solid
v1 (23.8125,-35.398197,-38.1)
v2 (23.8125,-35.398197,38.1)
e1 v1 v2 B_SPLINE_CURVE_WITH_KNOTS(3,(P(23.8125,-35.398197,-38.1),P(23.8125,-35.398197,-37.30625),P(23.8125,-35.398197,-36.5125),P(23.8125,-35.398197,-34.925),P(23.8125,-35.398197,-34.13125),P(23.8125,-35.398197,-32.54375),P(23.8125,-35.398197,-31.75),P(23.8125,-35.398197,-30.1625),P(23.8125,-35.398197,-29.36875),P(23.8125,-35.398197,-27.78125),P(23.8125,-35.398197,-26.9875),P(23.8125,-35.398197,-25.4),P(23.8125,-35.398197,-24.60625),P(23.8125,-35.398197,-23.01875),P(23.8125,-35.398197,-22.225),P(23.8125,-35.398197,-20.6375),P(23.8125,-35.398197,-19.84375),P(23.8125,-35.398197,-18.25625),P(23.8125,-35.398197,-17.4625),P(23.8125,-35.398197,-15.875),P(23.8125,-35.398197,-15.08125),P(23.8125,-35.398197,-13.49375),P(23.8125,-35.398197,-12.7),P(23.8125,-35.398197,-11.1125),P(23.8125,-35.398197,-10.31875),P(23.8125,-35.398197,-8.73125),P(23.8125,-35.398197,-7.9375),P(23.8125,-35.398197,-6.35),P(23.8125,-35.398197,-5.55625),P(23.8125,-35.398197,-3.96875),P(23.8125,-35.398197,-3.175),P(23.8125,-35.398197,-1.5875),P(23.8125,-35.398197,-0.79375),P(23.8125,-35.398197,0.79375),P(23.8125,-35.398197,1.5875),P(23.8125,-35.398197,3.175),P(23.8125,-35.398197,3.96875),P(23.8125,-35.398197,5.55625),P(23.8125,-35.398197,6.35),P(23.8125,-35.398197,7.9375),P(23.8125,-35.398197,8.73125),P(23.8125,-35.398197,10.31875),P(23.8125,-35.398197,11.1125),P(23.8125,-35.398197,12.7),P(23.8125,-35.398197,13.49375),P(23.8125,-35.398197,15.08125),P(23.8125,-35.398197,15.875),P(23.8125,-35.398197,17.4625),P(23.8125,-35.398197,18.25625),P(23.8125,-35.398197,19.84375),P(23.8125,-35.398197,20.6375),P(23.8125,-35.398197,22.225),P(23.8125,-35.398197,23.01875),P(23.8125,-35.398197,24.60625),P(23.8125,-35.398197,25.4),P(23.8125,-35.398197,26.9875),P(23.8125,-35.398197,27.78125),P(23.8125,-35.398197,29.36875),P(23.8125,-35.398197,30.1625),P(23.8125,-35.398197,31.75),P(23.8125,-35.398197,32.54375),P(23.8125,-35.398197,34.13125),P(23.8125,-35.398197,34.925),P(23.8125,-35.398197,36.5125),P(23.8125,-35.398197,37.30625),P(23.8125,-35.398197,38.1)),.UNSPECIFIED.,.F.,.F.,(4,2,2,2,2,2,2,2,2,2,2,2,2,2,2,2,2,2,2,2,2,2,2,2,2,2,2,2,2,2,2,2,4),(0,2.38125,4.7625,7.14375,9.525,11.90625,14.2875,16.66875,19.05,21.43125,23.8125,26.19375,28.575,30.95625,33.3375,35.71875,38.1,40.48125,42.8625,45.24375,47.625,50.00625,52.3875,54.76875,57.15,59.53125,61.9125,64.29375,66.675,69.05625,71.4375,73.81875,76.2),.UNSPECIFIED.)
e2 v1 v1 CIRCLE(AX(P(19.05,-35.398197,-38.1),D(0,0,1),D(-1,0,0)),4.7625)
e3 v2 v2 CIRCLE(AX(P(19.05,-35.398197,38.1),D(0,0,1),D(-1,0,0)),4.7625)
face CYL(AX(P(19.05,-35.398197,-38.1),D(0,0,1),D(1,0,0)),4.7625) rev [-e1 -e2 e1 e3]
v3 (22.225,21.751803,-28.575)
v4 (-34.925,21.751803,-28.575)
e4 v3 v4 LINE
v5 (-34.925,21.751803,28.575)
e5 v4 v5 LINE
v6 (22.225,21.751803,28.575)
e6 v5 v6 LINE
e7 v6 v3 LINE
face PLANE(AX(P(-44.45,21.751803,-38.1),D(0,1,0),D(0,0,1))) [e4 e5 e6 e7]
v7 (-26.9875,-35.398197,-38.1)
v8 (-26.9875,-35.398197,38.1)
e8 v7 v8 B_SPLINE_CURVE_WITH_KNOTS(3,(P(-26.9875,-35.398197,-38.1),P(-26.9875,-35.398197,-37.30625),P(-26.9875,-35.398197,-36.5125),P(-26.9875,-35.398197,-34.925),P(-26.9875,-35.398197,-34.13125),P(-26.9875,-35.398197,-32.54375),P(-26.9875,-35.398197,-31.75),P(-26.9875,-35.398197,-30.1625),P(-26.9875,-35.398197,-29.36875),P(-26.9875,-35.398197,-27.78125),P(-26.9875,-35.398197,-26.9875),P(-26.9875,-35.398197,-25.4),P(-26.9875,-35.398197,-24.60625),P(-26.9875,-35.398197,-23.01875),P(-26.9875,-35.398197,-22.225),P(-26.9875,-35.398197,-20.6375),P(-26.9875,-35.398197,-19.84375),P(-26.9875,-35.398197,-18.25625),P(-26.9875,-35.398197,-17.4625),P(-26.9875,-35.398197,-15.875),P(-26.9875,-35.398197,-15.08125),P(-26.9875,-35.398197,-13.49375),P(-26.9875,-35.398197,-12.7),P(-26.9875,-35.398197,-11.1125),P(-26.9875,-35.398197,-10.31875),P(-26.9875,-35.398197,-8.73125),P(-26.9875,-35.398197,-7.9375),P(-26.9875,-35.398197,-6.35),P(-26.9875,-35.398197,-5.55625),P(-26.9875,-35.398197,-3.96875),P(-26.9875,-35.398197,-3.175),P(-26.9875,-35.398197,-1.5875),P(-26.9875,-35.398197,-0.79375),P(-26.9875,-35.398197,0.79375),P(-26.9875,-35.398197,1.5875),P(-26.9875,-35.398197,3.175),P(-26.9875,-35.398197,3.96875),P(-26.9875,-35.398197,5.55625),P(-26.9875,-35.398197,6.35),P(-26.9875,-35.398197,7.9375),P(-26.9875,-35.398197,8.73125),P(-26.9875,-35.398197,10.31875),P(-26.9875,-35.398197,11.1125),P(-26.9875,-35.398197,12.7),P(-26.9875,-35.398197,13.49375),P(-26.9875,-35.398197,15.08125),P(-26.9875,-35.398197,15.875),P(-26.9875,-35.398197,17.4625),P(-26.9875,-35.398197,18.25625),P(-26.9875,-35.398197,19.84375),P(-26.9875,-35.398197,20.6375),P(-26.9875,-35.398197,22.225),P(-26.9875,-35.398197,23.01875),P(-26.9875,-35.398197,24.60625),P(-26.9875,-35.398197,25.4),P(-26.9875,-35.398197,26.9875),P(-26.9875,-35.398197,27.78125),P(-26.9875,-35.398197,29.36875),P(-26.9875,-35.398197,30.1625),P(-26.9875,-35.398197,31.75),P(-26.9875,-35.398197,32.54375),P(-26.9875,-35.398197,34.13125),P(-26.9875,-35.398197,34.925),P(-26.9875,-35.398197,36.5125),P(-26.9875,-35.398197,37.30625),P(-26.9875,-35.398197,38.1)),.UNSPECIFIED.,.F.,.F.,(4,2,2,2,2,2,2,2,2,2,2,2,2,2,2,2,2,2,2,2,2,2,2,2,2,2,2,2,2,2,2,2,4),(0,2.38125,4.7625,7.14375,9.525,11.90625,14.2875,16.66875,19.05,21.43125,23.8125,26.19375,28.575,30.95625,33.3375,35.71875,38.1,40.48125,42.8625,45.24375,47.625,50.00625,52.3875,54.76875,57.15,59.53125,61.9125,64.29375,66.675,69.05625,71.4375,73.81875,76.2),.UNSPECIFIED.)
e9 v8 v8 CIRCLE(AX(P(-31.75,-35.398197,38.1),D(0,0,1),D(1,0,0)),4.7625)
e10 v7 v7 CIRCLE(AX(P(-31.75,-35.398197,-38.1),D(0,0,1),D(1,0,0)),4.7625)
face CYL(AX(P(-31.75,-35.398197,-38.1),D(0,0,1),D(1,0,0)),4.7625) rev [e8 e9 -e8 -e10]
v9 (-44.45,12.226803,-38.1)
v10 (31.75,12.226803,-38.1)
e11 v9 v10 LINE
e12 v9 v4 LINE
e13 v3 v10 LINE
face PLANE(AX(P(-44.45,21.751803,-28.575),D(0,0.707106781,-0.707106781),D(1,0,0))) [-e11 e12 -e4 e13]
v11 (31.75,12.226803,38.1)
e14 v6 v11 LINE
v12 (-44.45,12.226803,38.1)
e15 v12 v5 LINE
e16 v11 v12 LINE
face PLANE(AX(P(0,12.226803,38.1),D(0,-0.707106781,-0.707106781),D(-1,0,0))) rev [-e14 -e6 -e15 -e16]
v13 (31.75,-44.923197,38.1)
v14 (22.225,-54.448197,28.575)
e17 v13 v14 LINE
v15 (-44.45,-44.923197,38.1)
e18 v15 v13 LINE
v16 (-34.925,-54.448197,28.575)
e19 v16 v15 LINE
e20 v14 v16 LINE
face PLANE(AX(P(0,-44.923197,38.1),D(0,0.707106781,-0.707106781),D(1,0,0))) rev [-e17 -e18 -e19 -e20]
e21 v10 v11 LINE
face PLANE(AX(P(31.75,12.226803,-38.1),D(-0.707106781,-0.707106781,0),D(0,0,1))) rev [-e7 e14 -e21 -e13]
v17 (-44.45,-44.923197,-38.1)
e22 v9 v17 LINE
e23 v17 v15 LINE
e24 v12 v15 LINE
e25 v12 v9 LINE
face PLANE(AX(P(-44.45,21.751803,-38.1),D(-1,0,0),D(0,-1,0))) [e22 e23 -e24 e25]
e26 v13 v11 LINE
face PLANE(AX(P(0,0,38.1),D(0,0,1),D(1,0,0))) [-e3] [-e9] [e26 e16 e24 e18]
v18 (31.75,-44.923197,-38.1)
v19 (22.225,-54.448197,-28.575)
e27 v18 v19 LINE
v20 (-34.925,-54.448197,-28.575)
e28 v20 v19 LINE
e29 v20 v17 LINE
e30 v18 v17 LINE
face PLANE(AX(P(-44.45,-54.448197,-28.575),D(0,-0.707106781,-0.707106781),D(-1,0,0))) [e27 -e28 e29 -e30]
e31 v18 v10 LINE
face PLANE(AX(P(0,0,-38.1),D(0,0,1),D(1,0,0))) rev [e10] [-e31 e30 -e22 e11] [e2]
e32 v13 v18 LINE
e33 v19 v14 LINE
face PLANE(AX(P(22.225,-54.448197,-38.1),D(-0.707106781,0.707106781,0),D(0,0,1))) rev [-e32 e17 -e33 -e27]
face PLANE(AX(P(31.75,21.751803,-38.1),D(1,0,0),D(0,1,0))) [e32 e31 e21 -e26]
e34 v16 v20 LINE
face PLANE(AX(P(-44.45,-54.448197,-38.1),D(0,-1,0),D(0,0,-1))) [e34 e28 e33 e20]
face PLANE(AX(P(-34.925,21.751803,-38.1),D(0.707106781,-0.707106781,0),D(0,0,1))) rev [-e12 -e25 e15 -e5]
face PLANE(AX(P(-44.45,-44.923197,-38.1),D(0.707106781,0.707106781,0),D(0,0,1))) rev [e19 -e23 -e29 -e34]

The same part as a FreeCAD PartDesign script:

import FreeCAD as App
import Part
import Sketcher
Q = App.Units.Quantity


def edges_at(feature, points):
    """Names of the edges that pass closest to the given points."""
    edges = feature.Shape.Edges
    near = lambda p: min(range(len(edges)), key=lambda i: edges[i].distToShape(Part.Vertex(*p))[0])
    return sorted({f"Edge{near(p) + 1}" for p in points})


def add_polygon(sketch, points):
    """Adds a closed chain of lines whose ends are joined by coincident constraints."""
    first, n = sketch.GeometryCount, len(points)
    for a, b in zip(points, points[1:] + points[:1]):
        sketch.addGeometry(Part.LineSegment(App.Vector(*a, 0), App.Vector(*b, 0)), False)
    for i in range(n):
        sketch.addConstraint(Sketcher.Constraint("Coincident", first + i, 2, first + (i + 1) % n, 1))

doc = App.newDocument("Part")
body = doc.addObject("PartDesign::Body", "Body")

# Sketch on XY plane
sketch1 = doc.addObject("Sketcher::SketchObject", "Sketch")
body.addObject(sketch1)
sketch1.AttachmentSupport = (doc.XY_Plane, [""])
sketch1.MapMode = "FlatFace"
add_polygon(sketch1, [(-44.5, 21.8), (-44.5, -54.4), (31.8, -54.4), (31.8, 21.8)])  # lines 0-3
sketch1.addGeometry(Part.Circle(App.Vector(-31.8, -35.4, 0), App.Vector(0, 0, 1), 4.8), False)  # 4
sketch1.addGeometry(Part.Circle(App.Vector(19.1, -35.4, 0), App.Vector(0, 0, 1), 4.8), False)  # 5
sketch1.addConstraint([
    Sketcher.Constraint("Vertical", 0),
    Sketcher.Constraint("Horizontal", 1),
    Sketcher.Constraint("Vertical", 2),
    Sketcher.Constraint("Horizontal", 3),
    Sketcher.Constraint("Equal", 4, 5),
    Sketcher.Constraint("Horizontal", 4, 3, 5, 3),
    Sketcher.Constraint("Equal", 3, 0),
    Sketcher.Constraint("DistanceX", 1, 1, 1, 2, Q("3 in")),
    Sketcher.Constraint("Diameter", 4, Q("0.375 in")),
    Sketcher.Constraint("DistanceX", 4, 3, 5, 3, Q("2 in")),
    Sketcher.Constraint("DistanceX", 0, 2, 4, 3, Q("0.5 in")),
    Sketcher.Constraint("DistanceX", 4, 3, -1, 1, Q("1.25 in")),
    Sketcher.Constraint("DistanceY", 0, 2, 4, 3, Q("0.75 in")),
    Sketcher.Constraint("DistanceY", 4, 3, -1, 1, Q("35.398197 mm")),
])
pad1 = doc.addObject("PartDesign::Pad", "Pad")
body.addObject(pad1)
pad1.Profile = sketch1
pad1.Type = "TwoLengths"
pad1.Length = Q("1.5 in")
pad1.Length2 = Q("1.5 in")
doc.recompute()

chamfer = doc.addObject("PartDesign::Chamfer", "Chamfer")
body.addObject(chamfer)
chamfer.Base = (pad1, edges_at(pad1, [
    (-6.35, -54.448, -38.1),
    (-6.35, 21.752, 38.1),
    (-6.35, -54.448, 38.1),
    (31.75, -54.448, 0),
    (-44.45, -54.448, 0),
    (-44.45, 21.752, 0),
    (31.75, 21.752, 0),
    (-6.35, 21.752, -38.1),
]))
chamfer.Size = Q("0.375 in")

doc.recompute()
